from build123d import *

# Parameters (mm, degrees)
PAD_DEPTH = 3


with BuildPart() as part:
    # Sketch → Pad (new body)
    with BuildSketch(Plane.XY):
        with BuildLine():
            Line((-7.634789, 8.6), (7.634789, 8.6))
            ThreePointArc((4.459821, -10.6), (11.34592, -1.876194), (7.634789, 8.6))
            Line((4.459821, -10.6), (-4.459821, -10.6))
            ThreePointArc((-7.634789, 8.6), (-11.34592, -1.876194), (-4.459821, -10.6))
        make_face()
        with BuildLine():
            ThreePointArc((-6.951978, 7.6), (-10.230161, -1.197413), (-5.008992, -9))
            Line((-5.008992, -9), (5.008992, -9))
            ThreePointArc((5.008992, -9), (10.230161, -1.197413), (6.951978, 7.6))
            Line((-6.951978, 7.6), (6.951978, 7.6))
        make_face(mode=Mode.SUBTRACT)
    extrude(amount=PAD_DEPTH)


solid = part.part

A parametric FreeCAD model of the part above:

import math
import FreeCAD as App
import Part
import Sketcher
Q = App.Units.Quantity

doc = App.newDocument("Part")
body = doc.addObject("PartDesign::Body", "Body")

sketch1 = body.newObject("Sketcher::SketchObject", "Sketch")
sketch1.AttachmentSupport = (doc.getObject("XY_Plane"), [""])
sketch1.MapMode = "FlatFace"
sketch1.addGeometry([
    Part.LineSegment(App.Vector(8, 9, 0), App.Vector(-8, 9, 0)),
    Part.ArcOfCircle(Part.Circle(App.Vector(0, 0, 0), App.Vector(0, 0, 1), 12), math.radians(132), math.radians(247)),
    Part.LineSegment(App.Vector(-4, -11, 0), App.Vector(4, -11, 0)),
    Part.ArcOfCircle(Part.Circle(App.Vector(0, 0, 0), App.Vector(0, 0, 1), 12), math.radians(-67), math.radians(48)),
    Part.LineSegment(App.Vector(-7, 8, 0), App.Vector(7, 8, 0)),
    Part.ArcOfCircle(Part.Circle(App.Vector(0, 0, 0), App.Vector(0, 0, 1), 10), math.radians(-61), math.radians(48)),
    Part.LineSegment(App.Vector(5, -9, 0), App.Vector(-5, -9, 0)),
    Part.ArcOfCircle(Part.Circle(App.Vector(0, 0, 0), App.Vector(0, 0, 1), 10), math.radians(132), math.radians(241)),
], False)
sketch1.addConstraint([
    Sketcher.Constraint("Coincident", 0, 2, 1, 1),
    Sketcher.Constraint("Coincident", 1, 2, 2, 1),
    Sketcher.Constraint("Coincident", 2, 2, 3, 1),
    Sketcher.Constraint("Coincident", 3, 2, 0, 1),
    Sketcher.Constraint("Coincident", 4, 2, 5, 2),
    Sketcher.Constraint("Coincident", 5, 1, 6, 1),
    Sketcher.Constraint("Coincident", 6, 2, 7, 2),
    Sketcher.Constraint("Coincident", 7, 1, 4, 1),
    Sketcher.Constraint("Horizontal", 0),
    Sketcher.Constraint("Horizontal", 2),
    Sketcher.Constraint("Horizontal", 4),
    Sketcher.Constraint("Horizontal", 6),
    Sketcher.Constraint("Coincident", 1, 3, -1, 1),
    Sketcher.Constraint("Coincident", 3, 3, -1, 1),
    Sketcher.Constraint("Coincident", 5, 3, -1, 1),
    Sketcher.Constraint("Coincident", 7, 3, -1, 1),
    Sketcher.Constraint("Equal", 1, 3),
    Sketcher.Constraint("Equal", 5, 7),
    Sketcher.Constraint("Radius", 1, Q("11.5 mm")),
    Sketcher.Constraint("Radius", 5, Q("10.3 mm")),
    Sketcher.Constraint("DistanceY", 5, 1, -1, 1, Q("9 mm")),
    Sketcher.Constraint("DistanceY", 4, 2, 3, 2, Q("1 mm")),
    Sketcher.Constraint("DistanceY", -1, 1, 0, 2, Q("8.6 mm")),
    Sketcher.Constraint("DistanceY", 1, 2, -1, 1, Q("10.6 mm")),
])
pad1 = body.newObject("PartDesign::Pad", "Pad")
pad1.Profile = sketch1
pad1.Length = 3

doc.recompute()
